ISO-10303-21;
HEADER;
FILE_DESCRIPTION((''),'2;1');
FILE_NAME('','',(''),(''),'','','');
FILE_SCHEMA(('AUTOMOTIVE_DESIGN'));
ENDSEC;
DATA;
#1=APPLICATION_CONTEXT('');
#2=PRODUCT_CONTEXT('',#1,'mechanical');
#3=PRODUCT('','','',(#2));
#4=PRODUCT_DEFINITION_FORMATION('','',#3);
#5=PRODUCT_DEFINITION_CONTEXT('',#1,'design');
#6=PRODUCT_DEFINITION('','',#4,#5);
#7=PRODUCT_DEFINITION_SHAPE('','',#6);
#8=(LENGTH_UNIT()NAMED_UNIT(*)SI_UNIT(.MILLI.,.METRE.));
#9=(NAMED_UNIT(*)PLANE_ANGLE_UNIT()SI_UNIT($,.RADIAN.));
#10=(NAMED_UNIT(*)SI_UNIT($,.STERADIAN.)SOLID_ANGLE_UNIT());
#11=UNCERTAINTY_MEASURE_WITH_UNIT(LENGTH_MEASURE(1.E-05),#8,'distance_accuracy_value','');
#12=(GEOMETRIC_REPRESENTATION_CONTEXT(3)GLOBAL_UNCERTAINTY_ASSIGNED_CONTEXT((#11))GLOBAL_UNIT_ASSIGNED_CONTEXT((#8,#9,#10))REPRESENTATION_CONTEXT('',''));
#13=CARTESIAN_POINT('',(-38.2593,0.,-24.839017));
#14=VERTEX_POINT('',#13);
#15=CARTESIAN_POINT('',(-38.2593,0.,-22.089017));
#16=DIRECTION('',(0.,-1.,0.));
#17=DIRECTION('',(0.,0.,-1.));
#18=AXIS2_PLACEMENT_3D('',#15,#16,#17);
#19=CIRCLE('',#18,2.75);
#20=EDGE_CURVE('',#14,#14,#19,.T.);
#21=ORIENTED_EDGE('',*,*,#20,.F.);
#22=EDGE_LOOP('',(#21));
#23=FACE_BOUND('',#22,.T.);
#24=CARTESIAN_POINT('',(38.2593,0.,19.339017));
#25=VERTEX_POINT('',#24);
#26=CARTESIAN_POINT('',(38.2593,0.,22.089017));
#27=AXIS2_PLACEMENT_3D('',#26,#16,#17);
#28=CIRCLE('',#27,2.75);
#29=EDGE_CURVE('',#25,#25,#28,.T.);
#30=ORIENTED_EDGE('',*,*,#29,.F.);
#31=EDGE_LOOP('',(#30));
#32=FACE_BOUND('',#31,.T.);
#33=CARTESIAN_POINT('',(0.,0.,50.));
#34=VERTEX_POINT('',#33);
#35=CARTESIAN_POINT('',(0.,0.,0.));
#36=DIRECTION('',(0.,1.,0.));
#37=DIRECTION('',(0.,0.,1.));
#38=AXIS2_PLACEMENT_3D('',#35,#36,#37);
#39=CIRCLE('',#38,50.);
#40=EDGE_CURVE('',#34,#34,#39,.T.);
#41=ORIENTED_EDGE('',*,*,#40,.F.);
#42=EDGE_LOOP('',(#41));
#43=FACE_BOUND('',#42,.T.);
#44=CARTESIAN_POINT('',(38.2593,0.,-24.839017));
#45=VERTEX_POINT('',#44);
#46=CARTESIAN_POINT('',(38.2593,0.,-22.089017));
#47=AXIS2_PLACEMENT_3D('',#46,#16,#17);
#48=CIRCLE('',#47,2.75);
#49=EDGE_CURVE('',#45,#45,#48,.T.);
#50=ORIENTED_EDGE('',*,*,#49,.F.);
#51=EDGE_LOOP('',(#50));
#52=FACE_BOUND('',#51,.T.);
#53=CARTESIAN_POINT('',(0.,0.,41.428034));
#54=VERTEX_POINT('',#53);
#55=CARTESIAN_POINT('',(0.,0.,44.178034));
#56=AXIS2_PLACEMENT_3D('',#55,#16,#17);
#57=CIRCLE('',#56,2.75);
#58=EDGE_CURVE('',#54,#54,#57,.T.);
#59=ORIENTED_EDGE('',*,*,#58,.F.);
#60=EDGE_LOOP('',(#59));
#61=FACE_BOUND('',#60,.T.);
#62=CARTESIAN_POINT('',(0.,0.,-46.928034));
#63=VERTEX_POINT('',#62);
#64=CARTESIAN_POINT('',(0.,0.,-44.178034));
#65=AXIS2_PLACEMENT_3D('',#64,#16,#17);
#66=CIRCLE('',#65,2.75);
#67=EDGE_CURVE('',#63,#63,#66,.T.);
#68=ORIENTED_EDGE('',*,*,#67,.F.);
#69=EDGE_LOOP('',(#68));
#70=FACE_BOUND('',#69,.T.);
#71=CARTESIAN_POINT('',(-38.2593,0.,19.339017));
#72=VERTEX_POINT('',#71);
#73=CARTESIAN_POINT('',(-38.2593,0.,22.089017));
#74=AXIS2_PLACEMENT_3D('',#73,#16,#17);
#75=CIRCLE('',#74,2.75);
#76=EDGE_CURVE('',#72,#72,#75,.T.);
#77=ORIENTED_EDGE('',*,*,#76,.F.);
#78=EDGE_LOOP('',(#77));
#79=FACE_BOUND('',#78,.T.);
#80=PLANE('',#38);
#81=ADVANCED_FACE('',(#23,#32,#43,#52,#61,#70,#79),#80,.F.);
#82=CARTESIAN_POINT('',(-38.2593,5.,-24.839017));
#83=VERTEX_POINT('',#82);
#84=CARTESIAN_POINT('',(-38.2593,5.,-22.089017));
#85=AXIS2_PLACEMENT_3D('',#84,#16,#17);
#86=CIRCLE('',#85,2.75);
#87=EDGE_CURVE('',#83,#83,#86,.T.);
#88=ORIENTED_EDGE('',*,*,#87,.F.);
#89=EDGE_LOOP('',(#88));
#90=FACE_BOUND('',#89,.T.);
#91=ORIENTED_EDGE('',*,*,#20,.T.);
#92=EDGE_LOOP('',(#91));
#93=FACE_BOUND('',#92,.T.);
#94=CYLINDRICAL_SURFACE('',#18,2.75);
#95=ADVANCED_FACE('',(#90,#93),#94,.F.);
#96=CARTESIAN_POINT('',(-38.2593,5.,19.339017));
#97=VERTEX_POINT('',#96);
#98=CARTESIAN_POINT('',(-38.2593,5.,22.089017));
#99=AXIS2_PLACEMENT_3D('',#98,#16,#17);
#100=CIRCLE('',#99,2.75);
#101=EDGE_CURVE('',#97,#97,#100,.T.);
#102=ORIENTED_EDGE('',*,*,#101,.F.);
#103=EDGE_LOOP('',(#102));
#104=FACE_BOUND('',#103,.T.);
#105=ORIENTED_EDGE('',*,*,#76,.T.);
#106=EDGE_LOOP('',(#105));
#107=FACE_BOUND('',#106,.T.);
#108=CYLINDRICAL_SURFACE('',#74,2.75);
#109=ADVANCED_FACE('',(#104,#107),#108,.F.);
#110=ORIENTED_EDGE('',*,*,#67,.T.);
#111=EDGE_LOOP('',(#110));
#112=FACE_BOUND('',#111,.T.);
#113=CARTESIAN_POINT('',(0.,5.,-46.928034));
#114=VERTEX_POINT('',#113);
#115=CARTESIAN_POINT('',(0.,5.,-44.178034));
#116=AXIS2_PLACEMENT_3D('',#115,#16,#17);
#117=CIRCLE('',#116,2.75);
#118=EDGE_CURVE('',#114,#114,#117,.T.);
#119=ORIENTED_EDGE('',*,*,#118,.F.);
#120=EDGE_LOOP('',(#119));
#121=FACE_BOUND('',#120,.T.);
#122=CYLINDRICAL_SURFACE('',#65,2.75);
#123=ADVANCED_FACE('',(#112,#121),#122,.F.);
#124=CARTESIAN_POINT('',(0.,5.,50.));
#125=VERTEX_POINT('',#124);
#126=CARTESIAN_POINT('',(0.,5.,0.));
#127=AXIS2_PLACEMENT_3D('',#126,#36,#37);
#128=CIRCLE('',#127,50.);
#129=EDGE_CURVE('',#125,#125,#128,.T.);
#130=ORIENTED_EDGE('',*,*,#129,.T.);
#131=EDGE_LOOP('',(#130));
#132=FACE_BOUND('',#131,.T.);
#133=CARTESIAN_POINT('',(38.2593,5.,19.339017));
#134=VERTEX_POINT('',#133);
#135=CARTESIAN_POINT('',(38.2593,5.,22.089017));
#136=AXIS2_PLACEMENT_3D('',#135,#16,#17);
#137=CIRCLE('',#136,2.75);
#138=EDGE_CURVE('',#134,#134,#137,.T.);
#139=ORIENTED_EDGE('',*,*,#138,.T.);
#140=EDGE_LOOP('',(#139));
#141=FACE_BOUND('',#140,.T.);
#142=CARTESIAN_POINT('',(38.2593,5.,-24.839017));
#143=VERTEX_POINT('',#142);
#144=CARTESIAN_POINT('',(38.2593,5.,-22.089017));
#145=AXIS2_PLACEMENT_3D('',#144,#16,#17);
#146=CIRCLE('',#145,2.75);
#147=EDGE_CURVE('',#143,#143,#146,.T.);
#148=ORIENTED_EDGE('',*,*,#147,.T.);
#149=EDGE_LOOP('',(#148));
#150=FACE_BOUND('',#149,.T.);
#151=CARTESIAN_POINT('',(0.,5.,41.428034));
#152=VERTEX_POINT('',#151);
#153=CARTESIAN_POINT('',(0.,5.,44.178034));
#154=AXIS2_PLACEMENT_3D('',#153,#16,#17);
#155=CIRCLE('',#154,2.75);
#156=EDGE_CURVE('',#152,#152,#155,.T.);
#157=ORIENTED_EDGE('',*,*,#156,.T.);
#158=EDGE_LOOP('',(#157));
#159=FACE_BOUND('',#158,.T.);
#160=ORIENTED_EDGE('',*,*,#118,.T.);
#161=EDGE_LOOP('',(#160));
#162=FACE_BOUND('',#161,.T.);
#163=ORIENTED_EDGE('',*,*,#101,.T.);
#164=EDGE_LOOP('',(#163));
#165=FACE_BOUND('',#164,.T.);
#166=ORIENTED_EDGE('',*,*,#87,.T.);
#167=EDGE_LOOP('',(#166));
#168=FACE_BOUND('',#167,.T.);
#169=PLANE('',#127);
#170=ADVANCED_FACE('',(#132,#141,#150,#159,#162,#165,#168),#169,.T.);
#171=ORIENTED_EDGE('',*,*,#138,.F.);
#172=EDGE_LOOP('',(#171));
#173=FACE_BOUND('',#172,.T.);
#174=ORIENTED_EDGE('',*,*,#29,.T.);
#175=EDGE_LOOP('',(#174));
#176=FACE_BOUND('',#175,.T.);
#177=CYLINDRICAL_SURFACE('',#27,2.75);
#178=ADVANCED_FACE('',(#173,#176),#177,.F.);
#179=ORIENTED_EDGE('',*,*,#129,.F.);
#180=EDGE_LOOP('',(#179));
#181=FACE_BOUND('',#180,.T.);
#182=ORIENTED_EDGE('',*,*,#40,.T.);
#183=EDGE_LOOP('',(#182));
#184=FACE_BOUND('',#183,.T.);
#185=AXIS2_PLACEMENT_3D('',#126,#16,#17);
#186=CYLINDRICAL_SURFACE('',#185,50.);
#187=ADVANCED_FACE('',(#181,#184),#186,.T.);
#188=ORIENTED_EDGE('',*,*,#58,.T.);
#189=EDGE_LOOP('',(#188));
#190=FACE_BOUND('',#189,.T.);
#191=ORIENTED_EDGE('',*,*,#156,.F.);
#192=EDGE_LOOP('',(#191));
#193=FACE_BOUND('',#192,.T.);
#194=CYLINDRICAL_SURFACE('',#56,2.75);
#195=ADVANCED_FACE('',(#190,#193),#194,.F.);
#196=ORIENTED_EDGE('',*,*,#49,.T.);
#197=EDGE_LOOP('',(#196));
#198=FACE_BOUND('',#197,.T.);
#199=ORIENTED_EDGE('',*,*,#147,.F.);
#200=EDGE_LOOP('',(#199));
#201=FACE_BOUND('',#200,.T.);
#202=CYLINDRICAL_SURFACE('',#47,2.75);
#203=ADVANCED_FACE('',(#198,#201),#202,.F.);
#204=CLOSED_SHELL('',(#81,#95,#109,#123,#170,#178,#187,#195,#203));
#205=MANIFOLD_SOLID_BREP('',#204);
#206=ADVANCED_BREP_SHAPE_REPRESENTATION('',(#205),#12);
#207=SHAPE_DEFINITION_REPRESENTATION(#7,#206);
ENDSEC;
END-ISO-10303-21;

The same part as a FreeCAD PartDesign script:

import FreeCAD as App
import Part
import Sketcher

V = App.Vector
Q = App.Units.Quantity

doc = App.newDocument("Part")
body = doc.addObject("PartDesign::Body", "Body")

# Sketch on XZ plane
sketch1 = body.newObject("Sketcher::SketchObject", "Sketch")
sketch1.AttachmentSupport = (doc.getObject("XZ_Plane"), [""])
sketch1.MapMode = "FlatFace"
sketch1.addGeometry(Part.Circle(V(0, 0, 0), V(0, 0, 1), 50), False)
sketch1.addConstraint([
    Sketcher.Constraint("Coincident", 0, 3, -1, 1),
    Sketcher.Constraint("Diameter", 0, Q("100 mm")),
])
pad1 = body.newObject("PartDesign::Pad", "Pad")
pad1.Profile = sketch1
pad1.Length = 5
pad1.Reversed = True

# Sketch on XZ plane
sketch2 = body.newObject("Sketcher::SketchObject", "Sketch001")
sketch2.AttachmentSupport = (doc.getObject("XZ_Plane"), [""])
sketch2.MapMode = "FlatFace"
sketch2.addGeometry(Part.Circle(V(0, -44.2, 0), V(0, 0, 1), 2.8), False)
sketch2.addConstraint([
    Sketcher.Constraint("PointOnObject", 0, 3, -2),
    Sketcher.Constraint("Diameter", 0, Q("5.5 mm")),
    Sketcher.Constraint("DistanceY", 0, 3, -1, 1, Q("44.178034 mm")),
])
doc.recompute()
hole = body.newObject("PartDesign::Hole", "Hole")
hole.Profile = sketch2
hole.ThreadType = "None"
hole.Diameter = 5.5
hole.DepthType = "ThroughAll"
doc.recompute()

polarpattern = body.newObject("PartDesign::PolarPattern", "PolarPattern")
polarpattern.Originals = [hole]
polarpattern.Axis = (doc.getObject("Y_Axis"), [""])
polarpattern.Angle = 360
polarpattern.Occurrences = 6
body.Tip = polarpattern

doc.recompute()
